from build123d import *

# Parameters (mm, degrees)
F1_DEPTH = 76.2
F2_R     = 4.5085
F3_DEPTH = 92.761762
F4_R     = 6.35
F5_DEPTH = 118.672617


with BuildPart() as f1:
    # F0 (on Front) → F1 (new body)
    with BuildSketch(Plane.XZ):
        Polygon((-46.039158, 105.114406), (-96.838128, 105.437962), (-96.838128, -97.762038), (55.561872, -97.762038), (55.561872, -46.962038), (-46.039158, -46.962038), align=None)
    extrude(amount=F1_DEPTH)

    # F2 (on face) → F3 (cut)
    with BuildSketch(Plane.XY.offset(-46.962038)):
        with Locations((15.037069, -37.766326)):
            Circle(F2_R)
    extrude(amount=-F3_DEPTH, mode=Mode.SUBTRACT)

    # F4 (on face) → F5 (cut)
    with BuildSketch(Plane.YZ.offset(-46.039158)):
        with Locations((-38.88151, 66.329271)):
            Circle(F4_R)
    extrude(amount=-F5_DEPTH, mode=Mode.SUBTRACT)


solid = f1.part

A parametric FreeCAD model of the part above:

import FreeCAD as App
import Part
import Sketcher
from FreeCAD import Vector
Q = App.Units.Quantity


def add_polygon(sketch, points):
    """Adds a closed chain of lines whose ends are joined by coincident constraints."""
    first, n = sketch.GeometryCount, len(points)
    for a, b in zip(points, points[1:] + points[:1]):
        sketch.addGeometry(Part.LineSegment(App.Vector(*a, 0), App.Vector(*b, 0)), False)
    for i in range(n):
        sketch.addConstraint(Sketcher.Constraint("Coincident", first + i, 2, first + (i + 1) % n, 1))

doc = App.newDocument("Part")
body = doc.addObject("PartDesign::Body", "Body")

# Sketch on XZ plane
sketch1 = doc.addObject("Sketcher::SketchObject", "Sketch")
body.addObject(sketch1)
sketch1.AttachmentSupport = (doc.XZ_Plane, [""])
sketch1.MapMode = "FlatFace"
add_polygon(sketch1, [(-46.039158, 105.114406), (-96.838128, 105.437962), (-96.838128, -97.762038), (55.561872, -97.762038), (55.561872, -46.962038), (-46.039158, -46.962038)])  # lines 0-5
sketch1.addConstraint([
    Sketcher.Constraint("Vertical", 1),
    Sketcher.Constraint("Horizontal", 2),
    Sketcher.Constraint("Vertical", 3),
    Sketcher.Constraint("Horizontal", 4),
    Sketcher.Constraint("Vertical", 5),
    Sketcher.Constraint("DistanceX", 2, 1, 2, 2, Q("6 in")),
    Sketcher.Constraint("DistanceY", 1, 2, 1, 1, Q("8 in")),
    Sketcher.Constraint("DistanceY", 3, 1, 3, 2, Q("2 in")),
    Sketcher.Constraint("Distance", 0, Q("2 in")),
    Sketcher.Constraint("DistanceX", 4, 2, 4, 1, 101.60103),
    Sketcher.Constraint("DistanceY", -1, 1, 0, 2, 105.437962),
    Sketcher.Constraint("DistanceX", 0, 2, -1, 1, 96.838128),
])
pad1 = doc.addObject("PartDesign::Pad", "Pad")
body.addObject(pad1)
pad1.Profile = sketch1
pad1.Length = Q("3 in")

# Sketch on XY plane
sketch2 = doc.addObject("Sketcher::SketchObject", "Sketch001")
body.addObject(sketch2)
sketch2.AttachmentSupport = (doc.XY_Plane, [""])
sketch2.MapMode = "FlatFace"
sketch2.AttachmentOffset = App.Placement(Vector(0, 0, -46.962038), App.Rotation())
sketch2.addGeometry(Part.Circle(Vector(15, -37.8, 0), Vector(0, 0, 1), 4.5), False)
sketch2.addConstraint([
    Sketcher.Constraint("Diameter", 0, Q("0.355 in")),
    Sketcher.Constraint("DistanceX", -1, 1, 0, 3, 15.037069),
    Sketcher.Constraint("DistanceY", 0, 3, -1, 1, 37.766326),
])
pocket1 = doc.addObject("PartDesign::Pocket", "Pocket")
body.addObject(pocket1)
pocket1.Profile = sketch2
pocket1.Length = 92.761762

# Sketch on YZ plane
sketch3 = doc.addObject("Sketcher::SketchObject", "Sketch002")
body.addObject(sketch3)
sketch3.AttachmentSupport = (doc.YZ_Plane, [""])
sketch3.MapMode = "FlatFace"
sketch3.AttachmentOffset = App.Placement(Vector(0, 0, -46.039158), App.Rotation())
sketch3.addGeometry(Part.Circle(Vector(-39, 66, 0), Vector(0, 0, 1), 6), False)
sketch3.addConstraint([
    Sketcher.Constraint("Diameter", 0, Q("0.5 in")),
    Sketcher.Constraint("DistanceX", 0, 3, -1, 1, 38.88151),
    Sketcher.Constraint("DistanceY", -1, 1, 0, 3, 66.329271),
])
pocket2 = doc.addObject("PartDesign::Pocket", "Pocket001")
body.addObject(pocket2)
pocket2.Profile = sketch3
pocket2.Length = 118.672617

doc.recompute()
